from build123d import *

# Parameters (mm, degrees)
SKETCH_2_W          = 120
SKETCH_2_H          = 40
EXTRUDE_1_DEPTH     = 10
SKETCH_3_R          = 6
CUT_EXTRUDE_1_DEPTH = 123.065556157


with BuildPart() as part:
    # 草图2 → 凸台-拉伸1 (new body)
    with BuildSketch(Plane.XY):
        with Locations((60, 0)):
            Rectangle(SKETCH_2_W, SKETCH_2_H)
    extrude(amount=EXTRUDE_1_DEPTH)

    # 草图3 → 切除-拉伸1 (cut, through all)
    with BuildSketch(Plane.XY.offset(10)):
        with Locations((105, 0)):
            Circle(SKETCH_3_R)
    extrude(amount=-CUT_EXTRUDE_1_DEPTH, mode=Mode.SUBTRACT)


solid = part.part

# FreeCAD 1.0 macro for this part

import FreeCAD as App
import Part
import Sketcher

V = App.Vector

doc = App.newDocument("Part")
body = doc.addObject("PartDesign::Body", "Body")

# Sketch on XY plane
sketch1 = doc.addObject("Sketcher::SketchObject", "Sketch")
body.addObject(sketch1)
sketch1.AttachmentSupport = (doc.XY_Plane, [""])
sketch1.MapMode = "FlatFace"
sketch1.addGeometry([
    Part.LineSegment(V(0, 20, 0), V(0, -20, 0)),
    Part.LineSegment(V(0, -20, 0), V(120, -20, 0)),
    Part.LineSegment(V(120, -20, 0), V(120, 20, 0)),
    Part.LineSegment(V(120, 20, 0), V(0, 20, 0)),
], False)
sketch1.addConstraint([
    Sketcher.Constraint("Coincident", 0, 2, 1, 1),
    Sketcher.Constraint("Coincident", 1, 2, 2, 1),
    Sketcher.Constraint("Coincident", 2, 2, 3, 1),
    Sketcher.Constraint("Coincident", 3, 2, 0, 1),
    Sketcher.Constraint("Vertical", 0),
    Sketcher.Constraint("Horizontal", 1),
    Sketcher.Constraint("Vertical", 2),
    Sketcher.Constraint("Horizontal", 3),
    Sketcher.Constraint("Symmetric", 0, 2, 3, 2, -1, 1),
    Sketcher.Constraint("DistanceX", 1, 1, 1, 2, 120.0),
    Sketcher.Constraint("DistanceY", 0, 2, 0, 1, 40.0),
])
pad1 = doc.addObject("PartDesign::Pad", "Pad")
body.addObject(pad1)
pad1.Profile = sketch1
pad1.Length = 10

# Sketch on XY plane
sketch2 = doc.addObject("Sketcher::SketchObject", "Sketch001")
body.addObject(sketch2)
sketch2.AttachmentSupport = (doc.XY_Plane, [""])
sketch2.MapMode = "FlatFace"
sketch2.AttachmentOffset = App.Placement(V(0, 0, 10), App.Rotation())
sketch2.addGeometry(Part.Circle(V(105, 0, 0), V(0, 0, 1), 6), False)
sketch2.addConstraint([
    Sketcher.Constraint("PointOnObject", 0, 3, -1),
    Sketcher.Constraint("Diameter", 0, 12.0),
    Sketcher.Constraint("DistanceX", -1, 1, 0, 3, 105.0),
])
pocket1 = doc.addObject("PartDesign::Pocket", "Pocket")
body.addObject(pocket1)
pocket1.Profile = sketch2
pocket1.Type = "ThroughAll"

doc.recompute()
